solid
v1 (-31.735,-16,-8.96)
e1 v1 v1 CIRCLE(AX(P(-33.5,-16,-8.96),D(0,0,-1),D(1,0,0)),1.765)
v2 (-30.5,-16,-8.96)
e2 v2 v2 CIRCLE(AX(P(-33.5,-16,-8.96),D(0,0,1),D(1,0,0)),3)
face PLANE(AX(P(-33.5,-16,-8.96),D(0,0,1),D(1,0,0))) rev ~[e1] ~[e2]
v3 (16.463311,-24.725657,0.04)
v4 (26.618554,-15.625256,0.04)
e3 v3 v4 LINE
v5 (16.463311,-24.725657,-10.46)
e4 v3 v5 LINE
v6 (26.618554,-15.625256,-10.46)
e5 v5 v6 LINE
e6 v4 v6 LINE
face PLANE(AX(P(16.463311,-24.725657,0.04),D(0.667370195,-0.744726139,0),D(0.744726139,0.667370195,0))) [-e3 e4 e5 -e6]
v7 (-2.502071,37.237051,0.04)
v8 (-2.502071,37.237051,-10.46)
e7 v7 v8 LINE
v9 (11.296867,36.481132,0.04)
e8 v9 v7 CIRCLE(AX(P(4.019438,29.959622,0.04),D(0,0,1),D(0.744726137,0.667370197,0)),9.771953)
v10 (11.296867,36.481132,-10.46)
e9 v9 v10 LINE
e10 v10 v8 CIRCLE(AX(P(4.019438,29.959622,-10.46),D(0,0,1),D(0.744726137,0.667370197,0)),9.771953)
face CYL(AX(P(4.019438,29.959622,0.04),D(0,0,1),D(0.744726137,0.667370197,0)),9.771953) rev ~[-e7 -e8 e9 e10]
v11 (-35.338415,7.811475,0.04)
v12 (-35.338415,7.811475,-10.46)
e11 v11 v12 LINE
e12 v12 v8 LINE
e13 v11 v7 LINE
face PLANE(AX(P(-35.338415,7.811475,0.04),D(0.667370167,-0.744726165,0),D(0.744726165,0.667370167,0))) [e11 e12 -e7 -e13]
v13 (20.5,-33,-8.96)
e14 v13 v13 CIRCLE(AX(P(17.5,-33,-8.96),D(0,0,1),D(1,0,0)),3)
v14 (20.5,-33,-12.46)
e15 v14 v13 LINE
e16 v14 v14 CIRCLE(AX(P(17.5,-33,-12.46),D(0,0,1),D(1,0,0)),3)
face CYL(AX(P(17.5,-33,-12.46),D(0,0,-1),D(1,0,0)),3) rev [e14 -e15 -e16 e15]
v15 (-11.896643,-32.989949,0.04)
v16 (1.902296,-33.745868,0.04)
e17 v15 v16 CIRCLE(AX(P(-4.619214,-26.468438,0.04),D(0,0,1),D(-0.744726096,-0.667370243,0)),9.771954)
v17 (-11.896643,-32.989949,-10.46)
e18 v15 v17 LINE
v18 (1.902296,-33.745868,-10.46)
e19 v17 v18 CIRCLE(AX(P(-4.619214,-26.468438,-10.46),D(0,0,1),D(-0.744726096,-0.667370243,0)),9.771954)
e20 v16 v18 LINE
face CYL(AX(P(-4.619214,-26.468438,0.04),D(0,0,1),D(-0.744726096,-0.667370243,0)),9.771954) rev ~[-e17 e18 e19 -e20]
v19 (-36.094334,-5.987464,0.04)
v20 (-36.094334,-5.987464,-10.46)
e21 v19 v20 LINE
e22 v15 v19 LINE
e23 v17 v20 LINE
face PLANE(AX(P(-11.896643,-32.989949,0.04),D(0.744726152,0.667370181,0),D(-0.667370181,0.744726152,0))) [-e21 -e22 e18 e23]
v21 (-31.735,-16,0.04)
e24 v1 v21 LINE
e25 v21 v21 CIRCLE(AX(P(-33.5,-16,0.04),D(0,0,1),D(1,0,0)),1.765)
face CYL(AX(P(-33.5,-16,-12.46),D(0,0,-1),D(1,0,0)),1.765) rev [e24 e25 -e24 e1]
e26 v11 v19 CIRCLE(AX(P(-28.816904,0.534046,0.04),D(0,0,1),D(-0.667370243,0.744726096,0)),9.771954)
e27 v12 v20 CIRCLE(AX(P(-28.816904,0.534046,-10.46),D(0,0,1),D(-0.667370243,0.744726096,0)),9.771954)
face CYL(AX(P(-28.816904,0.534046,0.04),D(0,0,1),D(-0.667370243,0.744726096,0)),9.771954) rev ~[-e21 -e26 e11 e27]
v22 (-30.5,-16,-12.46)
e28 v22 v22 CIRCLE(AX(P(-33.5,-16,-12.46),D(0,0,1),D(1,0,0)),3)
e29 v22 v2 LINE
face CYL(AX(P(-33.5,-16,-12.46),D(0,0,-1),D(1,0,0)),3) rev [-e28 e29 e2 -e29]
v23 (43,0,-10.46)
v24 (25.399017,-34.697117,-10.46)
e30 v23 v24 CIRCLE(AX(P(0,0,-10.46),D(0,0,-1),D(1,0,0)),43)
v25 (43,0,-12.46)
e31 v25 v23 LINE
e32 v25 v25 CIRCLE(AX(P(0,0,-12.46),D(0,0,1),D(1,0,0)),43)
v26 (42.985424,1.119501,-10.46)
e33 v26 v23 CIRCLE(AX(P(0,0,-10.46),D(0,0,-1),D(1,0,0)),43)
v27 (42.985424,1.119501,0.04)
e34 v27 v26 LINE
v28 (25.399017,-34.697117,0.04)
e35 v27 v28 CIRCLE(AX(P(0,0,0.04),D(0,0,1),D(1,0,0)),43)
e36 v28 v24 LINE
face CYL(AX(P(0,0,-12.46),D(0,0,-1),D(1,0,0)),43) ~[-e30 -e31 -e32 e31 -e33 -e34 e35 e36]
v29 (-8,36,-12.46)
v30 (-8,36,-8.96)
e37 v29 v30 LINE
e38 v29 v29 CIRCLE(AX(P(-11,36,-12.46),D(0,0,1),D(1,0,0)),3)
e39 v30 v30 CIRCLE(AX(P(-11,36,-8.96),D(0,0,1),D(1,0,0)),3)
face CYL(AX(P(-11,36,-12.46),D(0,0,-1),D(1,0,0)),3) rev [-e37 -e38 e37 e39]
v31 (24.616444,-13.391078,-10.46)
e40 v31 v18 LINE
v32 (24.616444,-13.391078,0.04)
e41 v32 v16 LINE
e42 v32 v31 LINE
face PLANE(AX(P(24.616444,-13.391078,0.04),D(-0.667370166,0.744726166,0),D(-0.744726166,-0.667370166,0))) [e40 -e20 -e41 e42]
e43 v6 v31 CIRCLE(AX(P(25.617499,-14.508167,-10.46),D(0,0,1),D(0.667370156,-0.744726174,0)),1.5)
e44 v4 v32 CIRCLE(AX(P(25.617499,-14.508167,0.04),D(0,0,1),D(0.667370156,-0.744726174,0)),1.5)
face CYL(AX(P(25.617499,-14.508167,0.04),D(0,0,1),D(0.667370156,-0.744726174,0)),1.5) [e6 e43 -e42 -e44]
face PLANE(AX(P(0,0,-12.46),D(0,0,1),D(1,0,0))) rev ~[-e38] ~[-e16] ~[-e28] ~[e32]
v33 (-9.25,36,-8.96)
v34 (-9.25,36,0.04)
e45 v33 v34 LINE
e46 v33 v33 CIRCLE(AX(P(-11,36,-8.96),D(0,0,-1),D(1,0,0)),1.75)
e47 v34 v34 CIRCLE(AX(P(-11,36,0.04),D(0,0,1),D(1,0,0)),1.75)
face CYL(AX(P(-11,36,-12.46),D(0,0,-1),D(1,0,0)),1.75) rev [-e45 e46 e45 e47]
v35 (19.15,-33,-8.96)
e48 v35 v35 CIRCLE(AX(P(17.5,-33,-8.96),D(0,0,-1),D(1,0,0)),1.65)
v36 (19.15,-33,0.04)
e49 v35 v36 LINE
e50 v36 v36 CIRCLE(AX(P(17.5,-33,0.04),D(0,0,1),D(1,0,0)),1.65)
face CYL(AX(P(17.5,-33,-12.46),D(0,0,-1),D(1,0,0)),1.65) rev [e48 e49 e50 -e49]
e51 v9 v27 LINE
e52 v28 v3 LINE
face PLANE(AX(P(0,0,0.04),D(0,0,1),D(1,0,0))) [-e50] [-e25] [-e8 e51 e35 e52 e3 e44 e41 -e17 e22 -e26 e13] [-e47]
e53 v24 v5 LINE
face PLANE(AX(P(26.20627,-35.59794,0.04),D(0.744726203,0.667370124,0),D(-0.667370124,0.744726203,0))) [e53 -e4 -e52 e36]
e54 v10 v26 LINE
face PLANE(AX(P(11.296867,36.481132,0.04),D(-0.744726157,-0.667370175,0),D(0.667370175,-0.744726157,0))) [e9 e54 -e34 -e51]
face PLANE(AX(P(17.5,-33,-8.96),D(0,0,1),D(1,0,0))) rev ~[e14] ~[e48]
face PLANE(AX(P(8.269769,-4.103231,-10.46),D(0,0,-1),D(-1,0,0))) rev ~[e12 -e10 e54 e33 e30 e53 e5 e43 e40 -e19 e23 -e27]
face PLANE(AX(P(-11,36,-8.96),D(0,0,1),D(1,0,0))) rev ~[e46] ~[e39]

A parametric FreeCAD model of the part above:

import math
import FreeCAD as App
import Part
import Sketcher

V = App.Vector
Q = App.Units.Quantity

doc = App.newDocument("Part")
body = doc.addObject("PartDesign::Body", "Body")

# Sketch on XY plane
sketch1 = doc.addObject("Sketcher::SketchObject", "Sketch")
body.addObject(sketch1)
sketch1.AttachmentSupport = (doc.XY_Plane, [""])
sketch1.MapMode = "FlatFace"
sketch1.addGeometry(Part.Circle(V(0, 0, 0), V(0, 0, 1), 43), False)
sketch1.addGeometry(Part.Circle(V(-33.5, -16, 0), V(0, 0, 1), 1.8), False)
sketch1.addGeometry(Part.Circle(V(17.5, -33, 0), V(0, 0, 1), 1.6), False)
sketch1.addGeometry(Part.Circle(V(-11, 36, 0), V(0, 0, 1), 1.8), False)
sketch1.addConstraint(Sketcher.Constraint("Coincident", 0, 3, -1, 1))
sketch1.addConstraint(Sketcher.Constraint("Diameter", 0, Q("86 mm")))
sketch1.addConstraint(Sketcher.Constraint("Diameter", 2, Q("3.3 mm")))
sketch1.addConstraint(Sketcher.Constraint("Diameter", 3, Q("3.5 mm")))
sketch1.addConstraint(Sketcher.Constraint("Diameter", 1, Q("3.53 mm")))
sketch1.addConstraint(Sketcher.Constraint("DistanceY", 1, 3, -1, 1, Q("16 mm")))
sketch1.addConstraint(Sketcher.Constraint("DistanceY", 2, 3, -1, 1, Q("33 mm")))
sketch1.addConstraint(Sketcher.Constraint("DistanceX", 3, 3, -1, 1, Q("11 mm")))
sketch1.addConstraint(Sketcher.Constraint("DistanceY", -1, 1, 3, 3, Q("36 mm")))
sketch1.addConstraint(Sketcher.Constraint("DistanceX", 1, 3, 2, 3, Q("51 mm")))
sketch1.addConstraint(Sketcher.Constraint("DistanceX", 1, 3, -1, 1, Q("33.5 mm")))
pad1 = doc.addObject("PartDesign::Pad", "Pad")
body.addObject(pad1)
pad1.Profile = sketch1
pad1.Length = 12.5

# Sketch on XY plane
sketch2 = doc.addObject("Sketcher::SketchObject", "Sketch001")
body.addObject(sketch2)
sketch2.AttachmentSupport = (doc.XY_Plane, [""])
sketch2.MapMode = "FlatFace"
sketch2.AttachmentOffset = App.Placement(V(0, 0, 12.5), App.Rotation())
sketch2.addGeometry(Part.LineSegment(V(53.8, -10.9, 0), V(11.3, 36.5, 0)), False)
sketch2.addGeometry(Part.ArcOfCircle(Part.Circle(V(4, 30, 0), V(0, 0, 1), 9.8), math.radians(42), math.radians(132)), False)
sketch2.addGeometry(Part.LineSegment(V(-2.5, 37.2, 0), V(-35.3, 7.8, 0)), False)
sketch2.addGeometry(Part.ArcOfCircle(Part.Circle(V(-28.8, 0.5, 0), V(0, 0, 1), 9.8), math.radians(132), math.radians(222)), False)
sketch2.addGeometry(Part.LineSegment(V(-36.1, -6, 0), V(-11.9, -33, 0)), False)
sketch2.addGeometry(Part.ArcOfCircle(Part.Circle(V(-4.6, -26.5, 0), V(0, 0, 1), 9.8), math.radians(-138), math.radians(-48)), False)
sketch2.addGeometry(Part.LineSegment(V(1.9, -33.7, 0), V(24.6, -13.4, 0)), False)
sketch2.addGeometry(Part.ArcOfCircle(Part.Circle(V(25.6, -14.5, 0), V(0, 0, 1), 1.5), math.radians(-48), math.radians(132)), False)
sketch2.addGeometry(Part.LineSegment(V(26.6, -15.6, 0), V(16.5, -24.7, 0)), False)
sketch2.addGeometry(Part.LineSegment(V(16.5, -24.7, 0), V(26.2, -35.6, 0)), False)
sketch2.addGeometry(Part.LineSegment(V(26.2, -35.6, 0), V(53.8, -10.9, 0)), False)
sketch2.addConstraint(Sketcher.Constraint("Tangent", 0, 2, 1, 1))
sketch2.addConstraint(Sketcher.Constraint("Tangent", 1, 2, 2, 1))
sketch2.addConstraint(Sketcher.Constraint("Tangent", 2, 2, 3, 1))
sketch2.addConstraint(Sketcher.Constraint("Tangent", 3, 2, 4, 1))
sketch2.addConstraint(Sketcher.Constraint("Tangent", 4, 2, 5, 1))
sketch2.addConstraint(Sketcher.Constraint("Tangent", 5, 2, 6, 1))
sketch2.addConstraint(Sketcher.Constraint("Tangent", 6, 2, 7, 2))
sketch2.addConstraint(Sketcher.Constraint("Tangent", 7, 1, 8, 1))
sketch2.addConstraint(Sketcher.Constraint("Coincident", 8, 2, 9, 1))
sketch2.addConstraint(Sketcher.Constraint("Coincident", 9, 2, 10, 1))
sketch2.addConstraint(Sketcher.Constraint("Coincident", 10, 2, 0, 1))
sketch2.addConstraint(Sketcher.Constraint("Equal", 1, 3))
sketch2.addConstraint(Sketcher.Constraint("Equal", 3, 5))
sketch2.addConstraint(Sketcher.Constraint("Perpendicular", 0, 2))
sketch2.addConstraint(Sketcher.Constraint("Perpendicular", 2, 4))
sketch2.addConstraint(Sketcher.Constraint("Perpendicular", 4, 6))
sketch2.addConstraint(Sketcher.Constraint("Parallel", 6, 8))
sketch2.addConstraint(Sketcher.Constraint("Perpendicular", 8, 9))
sketch2.addConstraint(Sketcher.Constraint("Perpendicular", 9, 10))
sketch2.addConstraint(Sketcher.Constraint("Radius", 7, Q("1.5 mm")))
sketch2.addConstraint(Sketcher.Constraint("Distance", 10, Q("37 mm")))
sketch2.addConstraint(Sketcher.Constraint("Distance", 6, Q("30.5 mm")))
sketch2.addConstraint(Sketcher.Constraint("Radius", 1, Q("9.771953 mm")))
sketch2.addConstraint(Sketcher.Constraint("DistanceX", -1, 1, 7, 3, Q("25.617499 mm")))
sketch2.addConstraint(Sketcher.Constraint("DistanceY", 7, 3, 0, 2, Q("50.989299 mm")))
sketch2.addConstraint(Sketcher.Constraint("DistanceX", 2, 2, 5, 3, Q("30.719201 mm")))
sketch2.addConstraint(Sketcher.Constraint("DistanceY", 5, 2, 7, 3, Q("19.237701 mm")))
sketch2.addConstraint(Sketcher.Constraint("Distance", 0, Q("63.629261 mm")))
sketch2.addConstraint(Sketcher.Constraint("DistanceY", -1, 1, 1, 2, Q("37.237051 mm")))
pocket1 = doc.addObject("PartDesign::Pocket", "Pocket")
body.addObject(pocket1)
pocket1.Profile = sketch2
pocket1.Length = 10.5

# Sketch on XY plane
sketch3 = doc.addObject("Sketcher::SketchObject", "Sketch002")
body.addObject(sketch3)
sketch3.AttachmentSupport = (doc.XY_Plane, [""])
sketch3.MapMode = "FlatFace"
sketch3.addGeometry(Part.Circle(V(-33.5, -16, 0), V(0, 0, 1), 3), False)
sketch3.addGeometry(Part.Circle(V(17.5, -33, 0), V(0, 0, 1), 3), False)
sketch3.addGeometry(Part.Circle(V(-11, 36, 0), V(0, 0, 1), 3), False)
sketch3.addConstraint(Sketcher.Constraint("Equal", 0, 1))
sketch3.addConstraint(Sketcher.Constraint("Equal", 1, 2))
sketch3.addConstraint(Sketcher.Constraint("Diameter", 0, Q("6 mm")))
sketch3.addConstraint(Sketcher.Constraint("DistanceY", 0, 3, -1, 1, Q("16 mm")))
sketch3.addConstraint(Sketcher.Constraint("DistanceY", 1, 3, -1, 1, Q("33 mm")))
sketch3.addConstraint(Sketcher.Constraint("DistanceX", 2, 3, -1, 1, Q("11 mm")))
sketch3.addConstraint(Sketcher.Constraint("DistanceY", -1, 1, 2, 3, Q("36 mm")))
sketch3.addConstraint(Sketcher.Constraint("DistanceX", 0, 3, 1, 3, Q("51 mm")))
sketch3.addConstraint(Sketcher.Constraint("DistanceX", 0, 3, -1, 1, Q("33.5 mm")))
pocket2 = doc.addObject("PartDesign::Pocket", "Pocket001")
body.addObject(pocket2)
pocket2.Profile = sketch3
pocket2.Length = 3.5
pocket2.Reversed = True
body2 = doc.addObject("PartDesign::Body", "Body001")
doc.recompute()

body.Placement = App.Placement(V(0, 0, -12.46), App.Rotation(V(0, 0, 1), 0))
boolean = doc.addObject("PartDesign::Boolean", "Boolean")
body2.addObject(boolean)
boolean.Type = "Fuse"
boolean.addObjects([body])

doc.recompute()
